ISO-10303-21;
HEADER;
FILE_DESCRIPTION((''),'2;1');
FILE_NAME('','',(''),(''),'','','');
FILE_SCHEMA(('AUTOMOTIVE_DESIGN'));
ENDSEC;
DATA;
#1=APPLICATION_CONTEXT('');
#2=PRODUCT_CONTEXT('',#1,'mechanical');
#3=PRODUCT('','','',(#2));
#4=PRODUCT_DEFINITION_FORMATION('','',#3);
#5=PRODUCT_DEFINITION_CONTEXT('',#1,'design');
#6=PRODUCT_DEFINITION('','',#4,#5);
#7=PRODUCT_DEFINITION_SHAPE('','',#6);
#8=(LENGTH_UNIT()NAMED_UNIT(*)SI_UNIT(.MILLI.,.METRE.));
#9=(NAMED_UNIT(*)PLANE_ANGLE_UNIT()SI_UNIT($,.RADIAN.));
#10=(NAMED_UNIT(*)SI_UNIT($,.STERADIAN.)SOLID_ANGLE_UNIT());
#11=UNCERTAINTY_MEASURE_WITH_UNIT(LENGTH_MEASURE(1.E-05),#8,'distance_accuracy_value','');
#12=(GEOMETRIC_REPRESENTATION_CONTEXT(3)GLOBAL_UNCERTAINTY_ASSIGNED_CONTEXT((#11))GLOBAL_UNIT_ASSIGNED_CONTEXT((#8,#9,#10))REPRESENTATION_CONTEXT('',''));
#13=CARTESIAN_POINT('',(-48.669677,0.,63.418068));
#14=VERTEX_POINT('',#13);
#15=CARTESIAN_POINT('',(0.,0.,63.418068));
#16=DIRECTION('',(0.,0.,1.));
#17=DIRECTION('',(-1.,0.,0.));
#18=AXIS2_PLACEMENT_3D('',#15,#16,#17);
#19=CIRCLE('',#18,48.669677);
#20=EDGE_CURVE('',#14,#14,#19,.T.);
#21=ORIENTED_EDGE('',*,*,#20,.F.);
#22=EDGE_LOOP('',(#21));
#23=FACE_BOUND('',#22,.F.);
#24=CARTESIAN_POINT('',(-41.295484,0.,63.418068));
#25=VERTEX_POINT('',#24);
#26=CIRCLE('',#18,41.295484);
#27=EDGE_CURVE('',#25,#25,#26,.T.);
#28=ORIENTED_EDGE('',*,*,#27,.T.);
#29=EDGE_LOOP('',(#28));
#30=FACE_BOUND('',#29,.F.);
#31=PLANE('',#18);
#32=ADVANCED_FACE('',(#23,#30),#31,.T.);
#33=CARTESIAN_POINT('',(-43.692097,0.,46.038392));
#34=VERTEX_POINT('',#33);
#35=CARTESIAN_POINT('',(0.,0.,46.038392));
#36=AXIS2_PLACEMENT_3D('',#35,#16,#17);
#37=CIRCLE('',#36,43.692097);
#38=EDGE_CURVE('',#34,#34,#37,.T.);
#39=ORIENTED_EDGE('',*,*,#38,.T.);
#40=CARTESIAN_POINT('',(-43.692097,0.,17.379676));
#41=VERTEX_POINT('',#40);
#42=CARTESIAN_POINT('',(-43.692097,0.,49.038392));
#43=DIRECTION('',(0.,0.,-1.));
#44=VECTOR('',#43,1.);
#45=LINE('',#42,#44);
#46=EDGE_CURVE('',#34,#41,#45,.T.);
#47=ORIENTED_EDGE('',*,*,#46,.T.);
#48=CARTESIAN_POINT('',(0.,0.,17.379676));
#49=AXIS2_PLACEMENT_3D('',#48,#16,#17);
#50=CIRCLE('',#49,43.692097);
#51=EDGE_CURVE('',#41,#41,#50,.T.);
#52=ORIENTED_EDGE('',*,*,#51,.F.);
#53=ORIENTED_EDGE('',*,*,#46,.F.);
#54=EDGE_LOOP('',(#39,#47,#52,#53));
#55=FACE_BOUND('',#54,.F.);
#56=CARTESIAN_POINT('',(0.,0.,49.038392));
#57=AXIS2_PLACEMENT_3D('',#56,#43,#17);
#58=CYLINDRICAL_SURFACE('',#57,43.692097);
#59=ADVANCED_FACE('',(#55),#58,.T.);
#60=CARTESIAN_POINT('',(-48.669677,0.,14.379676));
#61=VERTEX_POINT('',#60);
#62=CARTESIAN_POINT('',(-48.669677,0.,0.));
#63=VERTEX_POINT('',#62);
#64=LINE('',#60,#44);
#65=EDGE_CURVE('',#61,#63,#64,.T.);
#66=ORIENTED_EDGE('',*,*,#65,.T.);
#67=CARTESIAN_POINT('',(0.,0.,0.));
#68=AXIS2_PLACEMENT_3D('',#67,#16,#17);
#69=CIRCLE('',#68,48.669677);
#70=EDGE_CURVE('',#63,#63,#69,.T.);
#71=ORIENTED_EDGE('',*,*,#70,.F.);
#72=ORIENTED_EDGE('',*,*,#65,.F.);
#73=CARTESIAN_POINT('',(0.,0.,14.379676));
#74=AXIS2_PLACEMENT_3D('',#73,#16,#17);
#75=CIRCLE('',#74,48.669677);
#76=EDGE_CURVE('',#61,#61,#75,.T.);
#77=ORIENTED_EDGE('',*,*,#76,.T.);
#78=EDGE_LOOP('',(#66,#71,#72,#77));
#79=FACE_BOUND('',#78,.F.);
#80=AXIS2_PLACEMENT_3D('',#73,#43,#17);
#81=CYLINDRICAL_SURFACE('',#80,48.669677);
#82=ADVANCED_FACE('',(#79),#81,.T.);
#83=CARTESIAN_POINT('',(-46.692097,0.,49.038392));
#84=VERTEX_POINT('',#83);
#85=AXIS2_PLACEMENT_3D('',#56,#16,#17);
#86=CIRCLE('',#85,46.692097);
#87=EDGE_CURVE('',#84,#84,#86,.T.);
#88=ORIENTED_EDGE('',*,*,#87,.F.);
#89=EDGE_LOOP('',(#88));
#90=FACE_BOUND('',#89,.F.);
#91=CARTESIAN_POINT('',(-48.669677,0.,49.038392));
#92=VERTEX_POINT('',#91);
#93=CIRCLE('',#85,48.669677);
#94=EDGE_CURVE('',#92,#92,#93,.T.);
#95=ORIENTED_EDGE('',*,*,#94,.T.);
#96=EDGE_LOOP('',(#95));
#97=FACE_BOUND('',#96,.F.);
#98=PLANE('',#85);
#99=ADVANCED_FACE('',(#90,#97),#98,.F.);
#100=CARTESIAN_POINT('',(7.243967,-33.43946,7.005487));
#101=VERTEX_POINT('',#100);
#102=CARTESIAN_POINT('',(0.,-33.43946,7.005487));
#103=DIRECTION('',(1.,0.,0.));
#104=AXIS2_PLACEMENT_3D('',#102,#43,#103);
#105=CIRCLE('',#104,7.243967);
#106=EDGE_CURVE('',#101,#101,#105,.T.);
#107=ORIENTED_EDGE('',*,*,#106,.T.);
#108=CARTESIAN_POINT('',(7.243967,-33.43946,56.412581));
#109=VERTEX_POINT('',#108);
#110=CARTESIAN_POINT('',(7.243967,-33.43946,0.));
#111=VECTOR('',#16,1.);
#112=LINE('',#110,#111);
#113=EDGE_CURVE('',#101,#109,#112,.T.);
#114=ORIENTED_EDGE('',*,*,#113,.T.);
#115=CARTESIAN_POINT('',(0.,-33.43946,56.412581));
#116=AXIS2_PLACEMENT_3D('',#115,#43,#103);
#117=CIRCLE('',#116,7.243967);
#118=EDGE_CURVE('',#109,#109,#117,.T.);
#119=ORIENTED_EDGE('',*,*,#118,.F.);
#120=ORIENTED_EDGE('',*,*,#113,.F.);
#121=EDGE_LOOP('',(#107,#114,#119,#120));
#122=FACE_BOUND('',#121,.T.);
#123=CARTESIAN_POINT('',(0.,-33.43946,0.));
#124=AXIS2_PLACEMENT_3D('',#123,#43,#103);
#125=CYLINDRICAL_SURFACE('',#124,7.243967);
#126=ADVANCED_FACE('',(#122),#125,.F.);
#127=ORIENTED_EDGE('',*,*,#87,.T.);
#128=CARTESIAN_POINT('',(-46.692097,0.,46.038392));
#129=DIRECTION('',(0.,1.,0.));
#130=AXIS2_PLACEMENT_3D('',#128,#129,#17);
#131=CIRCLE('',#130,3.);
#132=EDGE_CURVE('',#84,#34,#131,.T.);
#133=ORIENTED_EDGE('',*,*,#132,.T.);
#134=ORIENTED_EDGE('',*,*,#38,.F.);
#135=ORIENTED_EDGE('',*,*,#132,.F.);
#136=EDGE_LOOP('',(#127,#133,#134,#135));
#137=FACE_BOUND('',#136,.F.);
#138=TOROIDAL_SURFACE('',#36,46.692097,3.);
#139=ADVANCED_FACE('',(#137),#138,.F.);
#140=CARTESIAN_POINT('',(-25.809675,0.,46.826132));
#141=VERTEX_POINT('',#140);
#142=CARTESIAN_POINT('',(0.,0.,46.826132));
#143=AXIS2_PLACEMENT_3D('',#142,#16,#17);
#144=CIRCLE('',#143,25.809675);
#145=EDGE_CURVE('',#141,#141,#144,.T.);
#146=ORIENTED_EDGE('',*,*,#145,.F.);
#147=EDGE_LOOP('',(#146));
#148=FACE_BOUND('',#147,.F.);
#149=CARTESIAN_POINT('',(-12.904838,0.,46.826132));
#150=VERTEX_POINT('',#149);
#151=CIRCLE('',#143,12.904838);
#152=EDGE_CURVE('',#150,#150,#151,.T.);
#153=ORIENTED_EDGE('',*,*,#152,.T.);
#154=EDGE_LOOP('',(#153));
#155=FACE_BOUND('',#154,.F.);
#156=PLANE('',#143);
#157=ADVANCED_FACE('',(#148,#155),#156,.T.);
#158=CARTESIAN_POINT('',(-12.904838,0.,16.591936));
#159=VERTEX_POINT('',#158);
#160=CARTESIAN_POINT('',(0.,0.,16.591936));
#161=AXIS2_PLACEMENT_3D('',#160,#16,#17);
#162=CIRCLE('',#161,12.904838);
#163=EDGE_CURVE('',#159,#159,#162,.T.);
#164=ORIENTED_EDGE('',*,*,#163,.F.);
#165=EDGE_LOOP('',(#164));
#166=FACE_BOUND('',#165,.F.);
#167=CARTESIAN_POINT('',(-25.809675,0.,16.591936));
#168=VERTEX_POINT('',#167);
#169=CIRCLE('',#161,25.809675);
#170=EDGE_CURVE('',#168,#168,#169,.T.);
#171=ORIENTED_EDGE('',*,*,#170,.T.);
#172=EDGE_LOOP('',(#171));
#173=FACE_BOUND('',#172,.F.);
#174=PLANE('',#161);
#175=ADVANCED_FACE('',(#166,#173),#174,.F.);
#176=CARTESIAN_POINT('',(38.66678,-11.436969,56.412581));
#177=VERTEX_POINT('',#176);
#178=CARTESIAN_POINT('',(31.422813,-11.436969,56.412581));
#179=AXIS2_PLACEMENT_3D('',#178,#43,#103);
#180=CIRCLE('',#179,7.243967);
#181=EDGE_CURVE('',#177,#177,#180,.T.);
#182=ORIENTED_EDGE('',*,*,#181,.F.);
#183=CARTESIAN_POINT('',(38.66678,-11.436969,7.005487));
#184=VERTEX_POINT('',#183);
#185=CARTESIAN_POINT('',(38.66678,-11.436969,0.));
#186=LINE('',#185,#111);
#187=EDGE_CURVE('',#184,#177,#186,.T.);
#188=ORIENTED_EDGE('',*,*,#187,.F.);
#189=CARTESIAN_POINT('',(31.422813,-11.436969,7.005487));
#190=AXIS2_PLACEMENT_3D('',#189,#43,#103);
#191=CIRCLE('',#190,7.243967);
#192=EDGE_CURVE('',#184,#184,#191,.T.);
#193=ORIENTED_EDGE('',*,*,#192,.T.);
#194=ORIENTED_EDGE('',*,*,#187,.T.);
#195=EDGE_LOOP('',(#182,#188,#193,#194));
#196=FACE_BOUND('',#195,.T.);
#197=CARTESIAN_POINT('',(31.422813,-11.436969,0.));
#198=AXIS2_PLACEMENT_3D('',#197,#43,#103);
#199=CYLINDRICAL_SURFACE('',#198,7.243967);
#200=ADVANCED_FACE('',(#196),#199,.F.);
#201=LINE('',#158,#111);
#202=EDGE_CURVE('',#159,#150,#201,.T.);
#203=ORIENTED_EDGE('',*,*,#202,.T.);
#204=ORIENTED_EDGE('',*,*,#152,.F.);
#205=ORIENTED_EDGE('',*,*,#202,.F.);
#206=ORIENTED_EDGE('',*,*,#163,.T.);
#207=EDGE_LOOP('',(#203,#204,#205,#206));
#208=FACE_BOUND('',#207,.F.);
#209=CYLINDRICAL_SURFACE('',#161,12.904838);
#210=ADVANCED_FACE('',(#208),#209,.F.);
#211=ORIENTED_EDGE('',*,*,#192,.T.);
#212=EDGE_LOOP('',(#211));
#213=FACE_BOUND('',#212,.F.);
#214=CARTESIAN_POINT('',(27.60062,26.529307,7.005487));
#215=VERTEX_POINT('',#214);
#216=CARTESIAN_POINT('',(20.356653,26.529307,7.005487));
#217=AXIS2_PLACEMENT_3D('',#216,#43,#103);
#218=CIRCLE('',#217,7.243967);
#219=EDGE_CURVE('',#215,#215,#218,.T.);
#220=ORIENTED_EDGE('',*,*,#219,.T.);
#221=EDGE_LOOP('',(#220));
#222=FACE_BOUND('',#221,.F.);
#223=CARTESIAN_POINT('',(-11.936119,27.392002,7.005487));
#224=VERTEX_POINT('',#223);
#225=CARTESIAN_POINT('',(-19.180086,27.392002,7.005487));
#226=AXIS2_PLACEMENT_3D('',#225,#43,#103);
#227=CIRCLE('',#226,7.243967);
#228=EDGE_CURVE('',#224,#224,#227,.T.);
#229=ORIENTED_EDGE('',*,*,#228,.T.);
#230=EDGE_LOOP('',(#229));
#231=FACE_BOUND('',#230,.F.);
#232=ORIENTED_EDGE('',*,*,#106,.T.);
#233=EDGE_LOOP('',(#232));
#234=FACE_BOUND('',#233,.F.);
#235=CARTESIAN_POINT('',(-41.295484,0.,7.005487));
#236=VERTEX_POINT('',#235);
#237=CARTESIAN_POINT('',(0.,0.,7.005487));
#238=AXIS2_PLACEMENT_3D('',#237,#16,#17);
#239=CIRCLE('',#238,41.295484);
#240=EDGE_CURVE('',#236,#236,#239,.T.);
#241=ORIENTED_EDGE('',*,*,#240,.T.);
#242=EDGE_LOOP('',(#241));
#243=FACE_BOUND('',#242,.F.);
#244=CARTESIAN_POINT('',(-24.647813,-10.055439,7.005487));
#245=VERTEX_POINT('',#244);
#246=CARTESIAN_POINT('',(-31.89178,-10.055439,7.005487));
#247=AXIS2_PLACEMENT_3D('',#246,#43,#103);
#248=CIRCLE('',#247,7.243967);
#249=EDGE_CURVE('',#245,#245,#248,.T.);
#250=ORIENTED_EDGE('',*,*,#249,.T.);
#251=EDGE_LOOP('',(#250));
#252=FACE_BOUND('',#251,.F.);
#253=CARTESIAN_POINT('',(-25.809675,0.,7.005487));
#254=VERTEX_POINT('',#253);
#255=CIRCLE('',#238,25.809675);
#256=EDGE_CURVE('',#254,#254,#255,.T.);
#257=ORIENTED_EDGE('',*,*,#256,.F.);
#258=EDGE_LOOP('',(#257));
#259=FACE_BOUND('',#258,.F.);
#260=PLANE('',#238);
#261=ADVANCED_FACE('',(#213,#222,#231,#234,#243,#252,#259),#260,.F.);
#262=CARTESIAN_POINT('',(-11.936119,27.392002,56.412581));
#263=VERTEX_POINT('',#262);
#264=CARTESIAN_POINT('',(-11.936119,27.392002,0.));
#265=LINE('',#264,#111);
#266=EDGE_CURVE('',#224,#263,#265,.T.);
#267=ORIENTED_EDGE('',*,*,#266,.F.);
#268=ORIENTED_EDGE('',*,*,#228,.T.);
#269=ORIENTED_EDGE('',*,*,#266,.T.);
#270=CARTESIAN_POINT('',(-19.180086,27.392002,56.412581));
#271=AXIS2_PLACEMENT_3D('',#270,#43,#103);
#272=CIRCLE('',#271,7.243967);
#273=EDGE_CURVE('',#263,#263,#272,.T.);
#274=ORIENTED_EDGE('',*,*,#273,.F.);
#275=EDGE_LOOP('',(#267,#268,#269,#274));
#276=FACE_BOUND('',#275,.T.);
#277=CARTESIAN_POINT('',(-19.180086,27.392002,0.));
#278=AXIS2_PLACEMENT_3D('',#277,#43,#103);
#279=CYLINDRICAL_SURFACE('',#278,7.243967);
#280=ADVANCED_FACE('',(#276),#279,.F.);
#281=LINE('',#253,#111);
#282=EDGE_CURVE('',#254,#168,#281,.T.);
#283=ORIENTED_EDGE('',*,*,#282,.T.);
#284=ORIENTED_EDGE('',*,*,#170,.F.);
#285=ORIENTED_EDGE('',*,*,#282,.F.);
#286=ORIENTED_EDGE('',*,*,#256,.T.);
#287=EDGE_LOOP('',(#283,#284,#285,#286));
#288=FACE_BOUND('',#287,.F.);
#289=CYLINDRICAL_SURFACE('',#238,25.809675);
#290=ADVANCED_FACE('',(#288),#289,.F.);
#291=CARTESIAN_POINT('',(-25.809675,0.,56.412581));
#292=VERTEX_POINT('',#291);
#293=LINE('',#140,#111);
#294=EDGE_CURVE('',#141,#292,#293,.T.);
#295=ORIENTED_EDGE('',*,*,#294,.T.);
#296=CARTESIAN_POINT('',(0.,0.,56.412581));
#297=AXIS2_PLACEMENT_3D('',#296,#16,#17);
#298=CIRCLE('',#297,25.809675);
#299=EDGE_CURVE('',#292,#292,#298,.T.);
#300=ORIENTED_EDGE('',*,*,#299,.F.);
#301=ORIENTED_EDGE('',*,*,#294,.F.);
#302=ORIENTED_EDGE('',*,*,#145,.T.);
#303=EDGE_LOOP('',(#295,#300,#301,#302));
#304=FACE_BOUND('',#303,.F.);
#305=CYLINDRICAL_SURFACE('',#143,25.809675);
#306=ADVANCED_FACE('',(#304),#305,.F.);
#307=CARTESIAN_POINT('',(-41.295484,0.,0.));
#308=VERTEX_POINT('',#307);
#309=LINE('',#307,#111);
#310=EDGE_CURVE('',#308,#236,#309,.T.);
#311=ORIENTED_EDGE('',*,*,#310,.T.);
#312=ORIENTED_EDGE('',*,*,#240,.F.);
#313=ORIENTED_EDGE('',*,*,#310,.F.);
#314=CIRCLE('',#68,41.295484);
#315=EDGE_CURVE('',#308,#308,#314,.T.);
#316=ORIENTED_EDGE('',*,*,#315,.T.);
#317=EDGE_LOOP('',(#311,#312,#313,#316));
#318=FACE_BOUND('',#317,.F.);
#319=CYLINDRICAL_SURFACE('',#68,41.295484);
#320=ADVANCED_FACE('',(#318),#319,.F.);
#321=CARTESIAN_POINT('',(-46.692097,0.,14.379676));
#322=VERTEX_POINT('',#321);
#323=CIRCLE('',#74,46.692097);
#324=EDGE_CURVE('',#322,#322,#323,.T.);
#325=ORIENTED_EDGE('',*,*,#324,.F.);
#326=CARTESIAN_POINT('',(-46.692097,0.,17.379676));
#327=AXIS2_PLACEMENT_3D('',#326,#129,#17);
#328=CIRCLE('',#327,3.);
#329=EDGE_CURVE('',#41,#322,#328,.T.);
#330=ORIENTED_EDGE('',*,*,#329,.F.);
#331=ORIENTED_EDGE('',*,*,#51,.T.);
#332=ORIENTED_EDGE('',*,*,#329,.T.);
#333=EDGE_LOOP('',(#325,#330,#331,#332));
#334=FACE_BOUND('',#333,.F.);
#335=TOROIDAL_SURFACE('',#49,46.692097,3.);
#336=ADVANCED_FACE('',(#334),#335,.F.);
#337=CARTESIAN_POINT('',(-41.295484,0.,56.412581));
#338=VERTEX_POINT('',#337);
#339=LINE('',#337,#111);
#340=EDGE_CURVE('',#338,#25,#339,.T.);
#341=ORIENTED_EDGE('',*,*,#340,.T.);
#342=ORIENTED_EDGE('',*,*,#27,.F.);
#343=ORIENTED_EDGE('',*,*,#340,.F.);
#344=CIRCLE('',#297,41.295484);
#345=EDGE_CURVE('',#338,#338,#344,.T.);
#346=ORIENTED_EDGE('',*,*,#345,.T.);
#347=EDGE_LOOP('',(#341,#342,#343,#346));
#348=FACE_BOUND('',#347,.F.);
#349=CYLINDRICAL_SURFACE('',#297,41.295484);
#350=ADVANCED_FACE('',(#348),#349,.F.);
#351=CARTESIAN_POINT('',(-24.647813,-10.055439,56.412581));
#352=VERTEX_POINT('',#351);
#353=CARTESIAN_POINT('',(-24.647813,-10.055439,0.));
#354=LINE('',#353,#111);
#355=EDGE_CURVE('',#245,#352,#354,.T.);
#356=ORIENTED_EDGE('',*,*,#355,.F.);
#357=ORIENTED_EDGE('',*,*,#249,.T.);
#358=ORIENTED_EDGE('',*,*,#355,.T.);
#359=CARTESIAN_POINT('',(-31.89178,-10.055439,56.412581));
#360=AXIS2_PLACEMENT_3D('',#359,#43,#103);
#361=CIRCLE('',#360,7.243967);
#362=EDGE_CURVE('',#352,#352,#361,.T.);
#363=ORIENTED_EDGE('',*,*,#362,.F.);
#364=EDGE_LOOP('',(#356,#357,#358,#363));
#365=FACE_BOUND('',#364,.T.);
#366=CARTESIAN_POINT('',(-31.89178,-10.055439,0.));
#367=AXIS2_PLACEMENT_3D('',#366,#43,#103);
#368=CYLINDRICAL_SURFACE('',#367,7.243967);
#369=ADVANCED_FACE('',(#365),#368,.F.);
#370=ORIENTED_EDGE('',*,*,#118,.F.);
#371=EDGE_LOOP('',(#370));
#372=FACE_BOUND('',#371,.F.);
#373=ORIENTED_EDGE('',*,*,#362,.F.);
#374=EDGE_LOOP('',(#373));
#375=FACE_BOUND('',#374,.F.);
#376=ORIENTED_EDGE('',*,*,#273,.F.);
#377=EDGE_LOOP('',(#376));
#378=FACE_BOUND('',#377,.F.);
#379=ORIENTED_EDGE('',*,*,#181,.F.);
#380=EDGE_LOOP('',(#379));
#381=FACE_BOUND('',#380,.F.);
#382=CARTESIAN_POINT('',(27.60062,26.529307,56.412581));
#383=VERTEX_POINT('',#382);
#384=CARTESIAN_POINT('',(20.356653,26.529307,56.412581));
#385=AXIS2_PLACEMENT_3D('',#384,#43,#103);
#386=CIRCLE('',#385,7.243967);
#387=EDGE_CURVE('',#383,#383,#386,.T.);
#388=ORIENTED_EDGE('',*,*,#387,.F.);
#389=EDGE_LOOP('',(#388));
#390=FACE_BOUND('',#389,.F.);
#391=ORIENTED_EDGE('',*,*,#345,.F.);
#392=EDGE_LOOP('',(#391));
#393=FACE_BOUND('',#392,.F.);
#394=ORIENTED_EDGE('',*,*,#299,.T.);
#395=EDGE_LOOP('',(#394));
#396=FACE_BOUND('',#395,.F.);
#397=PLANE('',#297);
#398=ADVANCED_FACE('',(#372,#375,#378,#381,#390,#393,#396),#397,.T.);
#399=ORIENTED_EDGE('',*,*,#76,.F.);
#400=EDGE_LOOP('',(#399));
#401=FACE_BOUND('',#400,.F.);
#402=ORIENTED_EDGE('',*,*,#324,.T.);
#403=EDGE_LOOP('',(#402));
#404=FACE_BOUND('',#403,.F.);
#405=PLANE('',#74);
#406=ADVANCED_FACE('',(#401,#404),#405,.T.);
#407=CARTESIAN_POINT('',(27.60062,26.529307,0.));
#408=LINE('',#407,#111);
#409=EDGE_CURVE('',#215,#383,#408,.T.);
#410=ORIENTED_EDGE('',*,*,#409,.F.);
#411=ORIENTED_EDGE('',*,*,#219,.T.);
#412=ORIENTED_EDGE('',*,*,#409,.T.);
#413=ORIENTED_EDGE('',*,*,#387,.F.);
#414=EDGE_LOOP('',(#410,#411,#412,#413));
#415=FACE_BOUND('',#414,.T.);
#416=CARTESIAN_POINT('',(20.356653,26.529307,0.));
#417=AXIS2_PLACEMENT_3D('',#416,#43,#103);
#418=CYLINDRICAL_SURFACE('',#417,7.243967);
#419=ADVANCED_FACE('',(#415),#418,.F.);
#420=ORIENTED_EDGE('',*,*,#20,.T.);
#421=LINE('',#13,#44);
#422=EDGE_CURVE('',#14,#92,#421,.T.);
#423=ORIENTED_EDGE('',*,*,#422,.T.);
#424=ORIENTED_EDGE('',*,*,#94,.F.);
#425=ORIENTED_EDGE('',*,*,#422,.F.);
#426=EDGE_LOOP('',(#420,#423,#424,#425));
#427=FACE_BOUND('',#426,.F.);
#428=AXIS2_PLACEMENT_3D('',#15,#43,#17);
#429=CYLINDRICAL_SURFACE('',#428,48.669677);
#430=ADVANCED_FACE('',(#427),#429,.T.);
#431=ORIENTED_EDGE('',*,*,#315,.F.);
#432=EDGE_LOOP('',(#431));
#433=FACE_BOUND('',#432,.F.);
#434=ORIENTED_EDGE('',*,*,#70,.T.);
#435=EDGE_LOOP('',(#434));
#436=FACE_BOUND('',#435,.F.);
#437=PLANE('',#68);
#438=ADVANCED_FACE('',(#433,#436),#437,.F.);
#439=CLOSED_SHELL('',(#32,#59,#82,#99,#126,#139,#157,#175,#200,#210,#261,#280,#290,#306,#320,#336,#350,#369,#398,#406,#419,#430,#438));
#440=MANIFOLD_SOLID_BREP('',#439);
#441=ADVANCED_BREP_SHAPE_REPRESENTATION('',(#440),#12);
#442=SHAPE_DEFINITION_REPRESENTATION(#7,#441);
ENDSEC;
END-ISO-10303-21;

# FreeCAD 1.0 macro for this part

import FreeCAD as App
import Part
import Sketcher
from FreeCAD import Vector


def edges_at(feature, points):
    """Names of the edges that pass closest to the given points."""
    edges = feature.Shape.Edges
    near = lambda p: min(range(len(edges)), key=lambda i: edges[i].distToShape(Part.Vertex(*p))[0])
    return sorted({f"Edge{near(p) + 1}" for p in points})


def add_polygon(sketch, points):
    """Adds a closed chain of lines whose ends are joined by coincident constraints."""
    first, n = sketch.GeometryCount, len(points)
    for a, b in zip(points, points[1:] + points[:1]):
        sketch.addGeometry(Part.LineSegment(App.Vector(*a, 0), App.Vector(*b, 0)), False)
    for i in range(n):
        sketch.addConstraint(Sketcher.Constraint("Coincident", first + i, 2, first + (i + 1) % n, 1))

doc = App.newDocument("Part")
body = doc.addObject("PartDesign::Body", "Body")

# Sketch on XZ plane
sketch1 = body.newObject("Sketcher::SketchObject", "Sketch")
sketch1.AttachmentSupport = (doc.getObject("XZ_Plane"), [""])
sketch1.MapMode = "FlatFace"
add_polygon(sketch1, [(-12.904838, 16.591936), (-12.904838, 46.826132), (-25.809675, 46.826132), (-25.809675, 56.412581), (-41.295484, 56.412581), (-41.295484, 63.418068), (-48.669677, 63.418068), (-48.669677, 49.038392), (-43.692097, 49.038392), (-43.692097, 14.379676), (-48.669677, 14.379676), (-48.669677, 0), (-41.295484, 0), (-41.295484, 7.005487), (-25.809675, 7.005487), (-25.809675, 16.591936)])  # lines 0-15
sketch1.addConstraint([
    Sketcher.Constraint("Vertical", 0),
    Sketcher.Constraint("Horizontal", 1),
    Sketcher.Constraint("Vertical", 2),
    Sketcher.Constraint("Horizontal", 3),
    Sketcher.Constraint("Vertical", 4),
    Sketcher.Constraint("Horizontal", 5),
    Sketcher.Constraint("Vertical", 6),
    Sketcher.Constraint("Horizontal", 7),
    Sketcher.Constraint("Vertical", 8),
    Sketcher.Constraint("Horizontal", 9),
    Sketcher.Constraint("Vertical", 10),
    Sketcher.Constraint("Horizontal", 11),
    Sketcher.Constraint("Vertical", 12),
    Sketcher.Constraint("Horizontal", 13),
    Sketcher.Constraint("Vertical", 14),
    Sketcher.Constraint("Horizontal", 15),
    Sketcher.Constraint("PointOnObject", 10, 2, -1),
    Sketcher.Constraint("Vertical", 6, 2, 9, 2),
    Sketcher.Constraint("Vertical", 4, 2, 11, 2),
    Sketcher.Constraint("Vertical", 2, 2, 13, 2),
    Sketcher.Constraint("Equal", 6, 10),
    Sketcher.Constraint("Equal", 4, 12),
    Sketcher.Constraint("Equal", 2, 14),
    Sketcher.Constraint("DistanceX", 3, 2, 3, 1, 15.485809),
    Sketcher.Constraint("DistanceX", 7, 1, 7, 2, 4.97758),
    Sketcher.Constraint("DistanceY", 2, 1, 2, 2, 9.586449),
    Sketcher.Constraint("DistanceX", 1, 2, 1, 1, 12.904837),
    Sketcher.Constraint("DistanceX", 5, 2, 5, 1, 7.374193),
    Sketcher.Constraint("DistanceY", 0, 1, 0, 2, 30.234196),
    Sketcher.Constraint("DistanceY", 4, 1, 4, 2, 7.005487),
    Sketcher.Constraint("DistanceY", 6, 2, 6, 1, 14.379676),
    Sketcher.Constraint("DistanceX", 0, 2, -1, 1, 12.904838),
])
revolution = body.newObject("PartDesign::Revolution", "Revolution")
revolution.Profile = sketch1
revolution.ReferenceAxis = (sketch1, ["V_Axis"])
revolution.Angle = 360
doc.recompute()

fillet = body.newObject("PartDesign::Fillet", "Fillet")
fillet.Base = (revolution, edges_at(revolution, [(43.692, 0, 49.038)]))
fillet.Radius = 3
doc.recompute()

fillet2 = body.newObject("PartDesign::Fillet", "Fillet001")
fillet2.Base = (fillet, edges_at(fillet, [(43.692, 0, 14.38)]))
fillet2.Radius = 3

# Sketch on XY plane
sketch2 = body.newObject("Sketcher::SketchObject", "Sketch001")
sketch2.AttachmentSupport = (doc.getObject("XY_Plane"), [""])
sketch2.MapMode = "FlatFace"
sketch2.addGeometry([
    Part.Circle(Vector(0, -33.43946, 0), Vector(0, 0, 1), 7.243967),  # 0
    Part.Circle(Vector(-31.89178, -10.055439, 0), Vector(0, 0, 1), 7.243967),  # 1
    Part.Circle(Vector(-19.180086, 27.392002, 0), Vector(0, 0, 1), 7.243967),  # 2
    Part.Circle(Vector(20.356653, 26.529307, 0), Vector(0, 0, 1), 7.243967),  # 3
    Part.Circle(Vector(31.422813, -11.436969, 0), Vector(0, 0, 1), 7.243967),  # 4
], False)
sketch2.addConstraint([
    Sketcher.Constraint("Equal", 0, 1),
    Sketcher.Constraint("Equal", 1, 2),
    Sketcher.Constraint("Equal", 2, 3),
    Sketcher.Constraint("Equal", 3, 4),
    Sketcher.Constraint("PointOnObject", 0, 3, -2),
    Sketcher.Constraint("Diameter", 0, 14.487934),
    Sketcher.Constraint("DistanceX", 2, 3, 4, 3, 50.602899),
    Sketcher.Constraint("DistanceY", 0, 3, -1, 1, 33.43946),
    Sketcher.Constraint("DistanceX", 1, 3, -1, 1, 31.89178),
    Sketcher.Constraint("DistanceY", 1, 3, -1, 1, 10.055439),
    Sketcher.Constraint("DistanceY", 4, 3, -1, 1, 11.436969),
    Sketcher.Constraint("DistanceY", 1, 3, 2, 3, 37.447441),
    Sketcher.Constraint("DistanceX", 2, 3, 3, 3, 39.536739),
    Sketcher.Constraint("DistanceX", 2, 3, -1, 1, 19.180086),
    Sketcher.Constraint("DistanceY", -1, 1, 3, 3, 26.529307),
])
pocket1 = body.newObject("PartDesign::Pocket", "Pocket")
pocket1.Profile = sketch2
pocket1.Length = 105.41
pocket1.Reversed = True

doc.recompute()
